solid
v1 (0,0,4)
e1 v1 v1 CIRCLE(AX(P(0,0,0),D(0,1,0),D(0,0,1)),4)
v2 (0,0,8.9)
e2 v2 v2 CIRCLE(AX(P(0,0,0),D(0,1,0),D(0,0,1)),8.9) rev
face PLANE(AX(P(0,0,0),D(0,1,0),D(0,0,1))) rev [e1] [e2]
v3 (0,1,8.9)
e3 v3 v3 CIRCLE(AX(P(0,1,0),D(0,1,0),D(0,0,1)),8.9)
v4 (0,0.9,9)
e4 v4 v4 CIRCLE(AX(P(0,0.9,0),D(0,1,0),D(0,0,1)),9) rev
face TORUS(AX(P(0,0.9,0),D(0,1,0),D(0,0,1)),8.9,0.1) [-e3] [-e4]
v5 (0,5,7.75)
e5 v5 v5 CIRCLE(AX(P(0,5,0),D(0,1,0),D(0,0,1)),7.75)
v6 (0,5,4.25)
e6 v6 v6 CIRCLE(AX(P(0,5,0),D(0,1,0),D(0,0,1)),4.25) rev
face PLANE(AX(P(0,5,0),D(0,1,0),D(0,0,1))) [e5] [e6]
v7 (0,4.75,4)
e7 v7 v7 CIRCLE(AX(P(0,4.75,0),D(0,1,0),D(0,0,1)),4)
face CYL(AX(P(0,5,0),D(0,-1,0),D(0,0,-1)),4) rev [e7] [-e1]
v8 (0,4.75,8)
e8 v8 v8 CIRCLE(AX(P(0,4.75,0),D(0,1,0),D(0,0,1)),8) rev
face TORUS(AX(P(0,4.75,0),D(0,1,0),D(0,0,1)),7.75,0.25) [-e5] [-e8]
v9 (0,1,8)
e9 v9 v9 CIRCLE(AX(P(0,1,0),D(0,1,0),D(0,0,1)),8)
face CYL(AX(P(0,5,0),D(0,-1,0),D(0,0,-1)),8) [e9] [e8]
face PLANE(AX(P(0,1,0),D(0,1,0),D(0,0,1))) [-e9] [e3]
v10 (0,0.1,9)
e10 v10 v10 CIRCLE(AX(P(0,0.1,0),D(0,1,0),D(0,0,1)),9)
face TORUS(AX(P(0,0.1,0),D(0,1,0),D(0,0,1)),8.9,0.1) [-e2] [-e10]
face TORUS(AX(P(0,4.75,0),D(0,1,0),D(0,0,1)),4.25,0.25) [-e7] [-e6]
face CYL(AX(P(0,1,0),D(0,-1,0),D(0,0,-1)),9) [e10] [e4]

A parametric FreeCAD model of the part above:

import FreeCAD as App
import Part
import Sketcher


def edges_at(feature, points):
    """Names of the edges that pass closest to the given points."""
    edges = feature.Shape.Edges
    near = lambda p: min(range(len(edges)), key=lambda i: edges[i].distToShape(Part.Vertex(*p))[0])
    return sorted({f"Edge{near(p) + 1}" for p in points})

doc = App.newDocument("Part")
body = doc.addObject("PartDesign::Body", "Body")

# Sketch on XZ plane
sketch1 = body.newObject("Sketcher::SketchObject", "Sketch")
sketch1.AttachmentSupport = (doc.getObject("XZ_Plane"), [""])
sketch1.MapMode = "FlatFace"
sketch1.addGeometry(Part.Circle(App.Vector(0, 0, 0), App.Vector(0, 0, 1), 8), False)
sketch1.addConstraint(Sketcher.Constraint("Coincident", 0, 3, -1, 1))
sketch1.addConstraint(Sketcher.Constraint("Diameter", 0, 16.0))
pad1 = body.newObject("PartDesign::Pad", "Pad")
pad1.Profile = sketch1
pad1.Length = 5
pad1.Reversed = True

# Sketch on XZ plane
sketch2 = body.newObject("Sketcher::SketchObject", "Sketch001")
sketch2.AttachmentSupport = (doc.getObject("XZ_Plane"), [""])
sketch2.MapMode = "FlatFace"
sketch2.addGeometry(Part.Circle(App.Vector(0, 0, 0), App.Vector(0, 0, 1), 9), False)
sketch2.addConstraint(Sketcher.Constraint("Coincident", 0, 3, -1, 1))
sketch2.addConstraint(Sketcher.Constraint("Diameter", 0, 18.0))
pad2 = body.newObject("PartDesign::Pad", "Pad001")
pad2.Profile = sketch2
pad2.Length = 1
pad2.Reversed = True

# Sketch on XZ plane
sketch3 = body.newObject("Sketcher::SketchObject", "Sketch002")
sketch3.AttachmentSupport = (doc.getObject("XZ_Plane"), [""])
sketch3.MapMode = "FlatFace"
sketch3.addGeometry(Part.Circle(App.Vector(0, 0, 0), App.Vector(0, 0, 1), 4), False)
sketch3.addConstraint(Sketcher.Constraint("Coincident", 0, 3, -1, 1))
sketch3.addConstraint(Sketcher.Constraint("Diameter", 0, 8.0))
pocket1 = body.newObject("PartDesign::Pocket", "Pocket")
pocket1.Profile = sketch3
pocket1.Length = 5
doc.recompute()

fillet = body.newObject("PartDesign::Fillet", "Fillet")
fillet.Base = (pocket1, edges_at(pocket1, [(0, 5, -4), (0, 5, -8)]))
fillet.Radius = 0.25
doc.recompute()

fillet2 = body.newObject("PartDesign::Fillet", "Fillet001")
fillet2.Base = (fillet, edges_at(fillet, [(0, 0, -9), (0, 1, -9)]))
fillet2.Radius = 0.1

doc.recompute()
